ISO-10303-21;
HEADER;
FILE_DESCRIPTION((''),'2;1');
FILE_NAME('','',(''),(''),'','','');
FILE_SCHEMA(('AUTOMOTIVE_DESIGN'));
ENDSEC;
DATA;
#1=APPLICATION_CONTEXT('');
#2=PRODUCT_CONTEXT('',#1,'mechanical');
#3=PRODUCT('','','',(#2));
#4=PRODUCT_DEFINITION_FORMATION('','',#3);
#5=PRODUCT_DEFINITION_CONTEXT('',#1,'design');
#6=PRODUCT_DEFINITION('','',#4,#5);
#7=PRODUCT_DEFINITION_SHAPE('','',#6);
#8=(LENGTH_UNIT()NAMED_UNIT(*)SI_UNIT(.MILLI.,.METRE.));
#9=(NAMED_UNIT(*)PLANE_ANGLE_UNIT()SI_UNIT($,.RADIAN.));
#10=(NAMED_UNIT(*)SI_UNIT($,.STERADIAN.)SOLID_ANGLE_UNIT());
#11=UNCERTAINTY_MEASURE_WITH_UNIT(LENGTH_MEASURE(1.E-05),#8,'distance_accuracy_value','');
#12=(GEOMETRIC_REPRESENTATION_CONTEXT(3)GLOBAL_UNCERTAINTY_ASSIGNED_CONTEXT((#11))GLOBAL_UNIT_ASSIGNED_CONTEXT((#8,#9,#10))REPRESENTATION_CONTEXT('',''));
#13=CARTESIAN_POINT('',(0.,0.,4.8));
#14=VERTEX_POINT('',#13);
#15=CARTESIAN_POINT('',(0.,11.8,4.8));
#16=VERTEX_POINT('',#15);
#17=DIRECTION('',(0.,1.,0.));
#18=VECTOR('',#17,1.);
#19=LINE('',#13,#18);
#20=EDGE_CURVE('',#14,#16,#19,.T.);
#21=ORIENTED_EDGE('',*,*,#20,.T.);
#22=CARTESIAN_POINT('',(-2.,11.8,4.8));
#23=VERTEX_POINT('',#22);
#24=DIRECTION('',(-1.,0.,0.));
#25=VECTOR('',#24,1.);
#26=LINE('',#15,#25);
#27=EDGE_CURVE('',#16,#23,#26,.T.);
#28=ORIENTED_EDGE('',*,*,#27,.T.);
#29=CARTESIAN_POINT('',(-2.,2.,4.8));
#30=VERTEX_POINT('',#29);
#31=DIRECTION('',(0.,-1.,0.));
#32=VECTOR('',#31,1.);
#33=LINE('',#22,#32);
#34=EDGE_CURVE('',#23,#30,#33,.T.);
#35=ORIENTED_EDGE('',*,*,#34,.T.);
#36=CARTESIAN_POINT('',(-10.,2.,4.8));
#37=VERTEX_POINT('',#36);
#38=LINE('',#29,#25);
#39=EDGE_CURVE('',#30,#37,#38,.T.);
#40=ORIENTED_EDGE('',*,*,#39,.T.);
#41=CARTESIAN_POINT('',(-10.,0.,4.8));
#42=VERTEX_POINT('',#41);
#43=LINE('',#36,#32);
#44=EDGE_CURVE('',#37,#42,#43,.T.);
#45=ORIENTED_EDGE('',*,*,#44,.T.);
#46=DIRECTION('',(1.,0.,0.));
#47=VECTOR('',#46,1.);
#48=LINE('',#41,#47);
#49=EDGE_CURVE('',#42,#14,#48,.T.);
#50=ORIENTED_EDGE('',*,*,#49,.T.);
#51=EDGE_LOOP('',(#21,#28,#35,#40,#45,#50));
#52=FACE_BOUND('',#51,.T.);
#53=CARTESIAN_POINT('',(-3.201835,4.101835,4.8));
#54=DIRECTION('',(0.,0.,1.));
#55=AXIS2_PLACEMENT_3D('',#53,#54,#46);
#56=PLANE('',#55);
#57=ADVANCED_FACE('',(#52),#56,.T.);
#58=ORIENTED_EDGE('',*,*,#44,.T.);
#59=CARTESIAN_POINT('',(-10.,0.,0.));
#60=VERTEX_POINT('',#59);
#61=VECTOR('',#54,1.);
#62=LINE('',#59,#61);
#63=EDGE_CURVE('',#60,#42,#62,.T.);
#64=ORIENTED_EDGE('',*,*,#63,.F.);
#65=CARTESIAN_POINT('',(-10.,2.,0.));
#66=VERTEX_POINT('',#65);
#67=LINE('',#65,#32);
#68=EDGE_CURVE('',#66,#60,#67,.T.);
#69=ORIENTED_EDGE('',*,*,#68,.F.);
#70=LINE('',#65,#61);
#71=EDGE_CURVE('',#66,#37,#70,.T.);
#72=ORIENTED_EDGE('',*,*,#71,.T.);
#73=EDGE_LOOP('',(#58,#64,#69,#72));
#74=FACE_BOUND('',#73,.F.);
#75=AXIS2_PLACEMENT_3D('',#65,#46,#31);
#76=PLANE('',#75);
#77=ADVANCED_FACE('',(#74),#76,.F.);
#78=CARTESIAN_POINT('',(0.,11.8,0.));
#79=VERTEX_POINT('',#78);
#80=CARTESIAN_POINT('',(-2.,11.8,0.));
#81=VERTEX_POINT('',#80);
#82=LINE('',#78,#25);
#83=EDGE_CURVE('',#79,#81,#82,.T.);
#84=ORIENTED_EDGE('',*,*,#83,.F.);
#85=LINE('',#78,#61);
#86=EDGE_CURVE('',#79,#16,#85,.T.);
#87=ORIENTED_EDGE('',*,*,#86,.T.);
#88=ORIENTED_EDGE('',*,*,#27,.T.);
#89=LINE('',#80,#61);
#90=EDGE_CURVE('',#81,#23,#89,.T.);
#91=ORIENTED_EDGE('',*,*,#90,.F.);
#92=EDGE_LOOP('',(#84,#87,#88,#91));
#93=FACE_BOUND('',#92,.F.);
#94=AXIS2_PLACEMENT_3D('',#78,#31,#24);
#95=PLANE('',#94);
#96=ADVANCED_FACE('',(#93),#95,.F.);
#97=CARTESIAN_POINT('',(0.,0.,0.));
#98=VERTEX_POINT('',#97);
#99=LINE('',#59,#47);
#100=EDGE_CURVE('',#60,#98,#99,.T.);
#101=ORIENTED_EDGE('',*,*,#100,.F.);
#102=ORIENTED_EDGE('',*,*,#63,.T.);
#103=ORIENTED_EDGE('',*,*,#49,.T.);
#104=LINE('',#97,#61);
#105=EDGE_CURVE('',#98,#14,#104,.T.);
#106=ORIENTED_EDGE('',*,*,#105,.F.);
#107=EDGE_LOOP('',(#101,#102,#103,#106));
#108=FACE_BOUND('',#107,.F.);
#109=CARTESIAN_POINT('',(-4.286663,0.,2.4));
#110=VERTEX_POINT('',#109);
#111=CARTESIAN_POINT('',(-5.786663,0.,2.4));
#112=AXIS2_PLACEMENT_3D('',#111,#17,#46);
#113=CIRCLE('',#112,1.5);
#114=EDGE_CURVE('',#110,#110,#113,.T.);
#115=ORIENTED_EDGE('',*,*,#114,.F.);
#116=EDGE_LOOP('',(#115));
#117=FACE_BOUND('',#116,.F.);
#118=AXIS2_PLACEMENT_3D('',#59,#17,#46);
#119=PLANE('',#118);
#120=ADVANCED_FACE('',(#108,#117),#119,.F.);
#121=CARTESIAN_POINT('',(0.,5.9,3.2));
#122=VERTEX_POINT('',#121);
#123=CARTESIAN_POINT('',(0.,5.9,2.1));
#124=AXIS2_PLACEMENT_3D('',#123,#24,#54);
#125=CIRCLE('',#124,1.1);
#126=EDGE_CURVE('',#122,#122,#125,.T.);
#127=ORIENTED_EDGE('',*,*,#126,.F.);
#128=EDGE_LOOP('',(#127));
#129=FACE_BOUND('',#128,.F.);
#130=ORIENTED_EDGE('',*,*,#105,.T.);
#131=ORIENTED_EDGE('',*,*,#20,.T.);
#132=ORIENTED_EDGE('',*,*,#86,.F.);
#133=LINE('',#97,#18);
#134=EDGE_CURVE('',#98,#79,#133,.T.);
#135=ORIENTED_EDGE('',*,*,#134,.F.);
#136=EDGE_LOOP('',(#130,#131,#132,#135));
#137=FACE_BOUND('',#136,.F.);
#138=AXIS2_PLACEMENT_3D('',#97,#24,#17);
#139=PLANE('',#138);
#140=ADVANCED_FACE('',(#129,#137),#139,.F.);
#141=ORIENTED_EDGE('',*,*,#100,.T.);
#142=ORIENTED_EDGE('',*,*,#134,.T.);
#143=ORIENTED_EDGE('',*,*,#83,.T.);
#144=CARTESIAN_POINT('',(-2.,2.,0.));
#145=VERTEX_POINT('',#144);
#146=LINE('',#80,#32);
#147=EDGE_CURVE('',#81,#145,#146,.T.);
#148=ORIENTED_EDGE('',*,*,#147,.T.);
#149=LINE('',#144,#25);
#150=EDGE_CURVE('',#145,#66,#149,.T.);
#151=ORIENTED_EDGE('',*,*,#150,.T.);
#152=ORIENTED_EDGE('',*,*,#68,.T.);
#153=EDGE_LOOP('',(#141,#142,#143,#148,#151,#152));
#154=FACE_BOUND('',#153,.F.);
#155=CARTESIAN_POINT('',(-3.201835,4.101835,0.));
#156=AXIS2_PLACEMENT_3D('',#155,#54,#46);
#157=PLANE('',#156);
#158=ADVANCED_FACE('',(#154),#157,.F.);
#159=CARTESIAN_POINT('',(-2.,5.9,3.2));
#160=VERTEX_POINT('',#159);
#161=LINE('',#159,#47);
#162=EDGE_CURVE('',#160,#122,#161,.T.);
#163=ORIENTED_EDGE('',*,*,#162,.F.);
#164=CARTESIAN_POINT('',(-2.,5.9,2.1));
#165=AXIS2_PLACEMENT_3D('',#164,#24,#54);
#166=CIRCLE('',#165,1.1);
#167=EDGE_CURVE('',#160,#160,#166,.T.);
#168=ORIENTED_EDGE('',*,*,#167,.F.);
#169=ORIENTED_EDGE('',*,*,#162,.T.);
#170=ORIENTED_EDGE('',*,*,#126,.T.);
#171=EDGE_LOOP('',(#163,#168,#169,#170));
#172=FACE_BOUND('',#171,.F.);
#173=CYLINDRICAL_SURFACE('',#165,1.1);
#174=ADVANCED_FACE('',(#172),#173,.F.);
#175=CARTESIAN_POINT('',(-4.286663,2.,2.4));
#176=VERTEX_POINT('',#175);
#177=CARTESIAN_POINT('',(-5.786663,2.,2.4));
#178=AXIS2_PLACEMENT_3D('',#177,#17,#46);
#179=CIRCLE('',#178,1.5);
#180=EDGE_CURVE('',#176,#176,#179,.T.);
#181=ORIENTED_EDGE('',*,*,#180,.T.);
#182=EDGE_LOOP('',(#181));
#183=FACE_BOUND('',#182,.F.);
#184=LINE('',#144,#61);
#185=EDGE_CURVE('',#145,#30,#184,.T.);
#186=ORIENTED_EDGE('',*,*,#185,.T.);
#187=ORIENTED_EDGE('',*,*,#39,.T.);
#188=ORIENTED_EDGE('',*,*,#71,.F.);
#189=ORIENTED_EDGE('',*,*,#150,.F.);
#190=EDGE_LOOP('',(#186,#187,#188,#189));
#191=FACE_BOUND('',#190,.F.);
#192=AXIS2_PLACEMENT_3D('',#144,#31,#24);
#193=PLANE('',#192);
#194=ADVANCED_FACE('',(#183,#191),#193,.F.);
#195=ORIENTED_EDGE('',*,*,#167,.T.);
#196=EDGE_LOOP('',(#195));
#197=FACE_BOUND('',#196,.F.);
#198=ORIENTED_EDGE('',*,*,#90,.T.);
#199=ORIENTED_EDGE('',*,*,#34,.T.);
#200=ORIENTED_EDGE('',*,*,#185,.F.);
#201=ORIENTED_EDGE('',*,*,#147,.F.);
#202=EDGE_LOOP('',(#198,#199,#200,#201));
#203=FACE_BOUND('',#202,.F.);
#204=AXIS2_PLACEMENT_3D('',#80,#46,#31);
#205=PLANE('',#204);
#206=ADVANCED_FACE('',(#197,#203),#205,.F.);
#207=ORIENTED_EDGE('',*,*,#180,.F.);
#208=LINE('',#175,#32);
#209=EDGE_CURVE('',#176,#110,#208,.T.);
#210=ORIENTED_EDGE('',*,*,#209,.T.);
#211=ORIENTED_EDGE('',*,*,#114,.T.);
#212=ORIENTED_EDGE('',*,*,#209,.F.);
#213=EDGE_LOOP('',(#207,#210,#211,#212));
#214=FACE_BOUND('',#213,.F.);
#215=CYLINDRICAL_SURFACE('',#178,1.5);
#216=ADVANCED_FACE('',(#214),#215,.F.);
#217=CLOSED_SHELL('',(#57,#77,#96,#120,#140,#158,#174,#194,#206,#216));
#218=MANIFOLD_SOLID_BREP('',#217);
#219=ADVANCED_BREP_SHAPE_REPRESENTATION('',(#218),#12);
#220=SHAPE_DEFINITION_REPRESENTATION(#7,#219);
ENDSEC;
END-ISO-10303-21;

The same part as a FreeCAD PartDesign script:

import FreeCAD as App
import Part
import Sketcher
from FreeCAD import Vector
Q = App.Units.Quantity


def add_polygon(sketch, points):
    """Adds a closed chain of lines whose ends are joined by coincident constraints."""
    first, n = sketch.GeometryCount, len(points)
    for a, b in zip(points, points[1:] + points[:1]):
        sketch.addGeometry(Part.LineSegment(App.Vector(*a, 0), App.Vector(*b, 0)), False)
    for i in range(n):
        sketch.addConstraint(Sketcher.Constraint("Coincident", first + i, 2, first + (i + 1) % n, 1))

doc = App.newDocument("Part")
body = doc.addObject("PartDesign::Body", "Body")

sketch1 = body.newObject("Sketcher::SketchObject", "Sketch")
sketch1.AttachmentSupport = (doc.getObject("XY_Plane"), [""])
sketch1.MapMode = "FlatFace"
add_polygon(sketch1, [(0, 0), (0, 11.8), (-2, 11.8), (-2, 2), (-10, 2), (-10, 0)])
sketch1.addConstraint(Sketcher.Constraint("Vertical", 0))
sketch1.addConstraint(Sketcher.Constraint("Horizontal", 1))
sketch1.addConstraint(Sketcher.Constraint("Vertical", 2))
sketch1.addConstraint(Sketcher.Constraint("Horizontal", 3))
sketch1.addConstraint(Sketcher.Constraint("Vertical", 4))
sketch1.addConstraint(Sketcher.Constraint("Horizontal", 5))
sketch1.addConstraint(Sketcher.Constraint("Coincident", 5, 2, -1, 1))
sketch1.addConstraint(Sketcher.Constraint("Equal", 1, 4))
sketch1.addConstraint(Sketcher.Constraint("DistanceX", 1, 2, 1, 1, Q("2 mm")))
sketch1.addConstraint(Sketcher.Constraint("DistanceX", 3, 2, 3, 1, Q("8 mm")))
sketch1.addConstraint(Sketcher.Constraint("DistanceY", 0, 1, 0, 2, Q("11.8 mm")))
pad1 = body.newObject("PartDesign::Pad", "Pad")
pad1.Profile = sketch1
pad1.Length = 4.8

sketch2 = body.newObject("Sketcher::SketchObject", "Sketch001")
sketch2.AttachmentSupport = (doc.getObject("YZ_Plane"), [""])
sketch2.MapMode = "FlatFace"
sketch2.AttachmentOffset = App.Placement(Vector(0, 0, -2), App.Rotation())
sketch2.addGeometry(Part.Circle(Vector(5.9, 2.1, 0), Vector(0, 0, 1), 1.1), False)
sketch2.addConstraint(Sketcher.Constraint("Diameter", 0, Q("2.2 mm")))
sketch2.addConstraint(Sketcher.Constraint("DistanceX", -1, 1, 0, 3, Q("5.9 mm")))
sketch2.addConstraint(Sketcher.Constraint("DistanceY", -1, 1, 0, 3, Q("2.1 mm")))
pocket1 = body.newObject("PartDesign::Pocket", "Pocket")
pocket1.Profile = sketch2
pocket1.Type = "UpToFirst"
pocket1.Reversed = True

sketch3 = body.newObject("Sketcher::SketchObject", "Sketch002")
sketch3.AttachmentSupport = (doc.getObject("XZ_Plane"), [""])
sketch3.MapMode = "FlatFace"
sketch3.AttachmentOffset = App.Placement(Vector(0, 0, -2), App.Rotation())
sketch3.addGeometry(Part.Circle(Vector(-5.786663, 2.4, 0), Vector(0, 0, 1), 1.5), False)
sketch3.addConstraint(Sketcher.Constraint("Diameter", 0, Q("3 mm")))
sketch3.addConstraint(Sketcher.Constraint("DistanceY", -1, 1, 0, 3, Q("2.4 mm")))
sketch3.addConstraint(Sketcher.Constraint("DistanceX", 0, 3, -1, 1, Q("5.786663 mm")))
pocket2 = body.newObject("PartDesign::Pocket", "Pocket001")
pocket2.Profile = sketch3
pocket2.Type = "UpToFirst"
pocket2.Reversed = True

doc.recompute()
